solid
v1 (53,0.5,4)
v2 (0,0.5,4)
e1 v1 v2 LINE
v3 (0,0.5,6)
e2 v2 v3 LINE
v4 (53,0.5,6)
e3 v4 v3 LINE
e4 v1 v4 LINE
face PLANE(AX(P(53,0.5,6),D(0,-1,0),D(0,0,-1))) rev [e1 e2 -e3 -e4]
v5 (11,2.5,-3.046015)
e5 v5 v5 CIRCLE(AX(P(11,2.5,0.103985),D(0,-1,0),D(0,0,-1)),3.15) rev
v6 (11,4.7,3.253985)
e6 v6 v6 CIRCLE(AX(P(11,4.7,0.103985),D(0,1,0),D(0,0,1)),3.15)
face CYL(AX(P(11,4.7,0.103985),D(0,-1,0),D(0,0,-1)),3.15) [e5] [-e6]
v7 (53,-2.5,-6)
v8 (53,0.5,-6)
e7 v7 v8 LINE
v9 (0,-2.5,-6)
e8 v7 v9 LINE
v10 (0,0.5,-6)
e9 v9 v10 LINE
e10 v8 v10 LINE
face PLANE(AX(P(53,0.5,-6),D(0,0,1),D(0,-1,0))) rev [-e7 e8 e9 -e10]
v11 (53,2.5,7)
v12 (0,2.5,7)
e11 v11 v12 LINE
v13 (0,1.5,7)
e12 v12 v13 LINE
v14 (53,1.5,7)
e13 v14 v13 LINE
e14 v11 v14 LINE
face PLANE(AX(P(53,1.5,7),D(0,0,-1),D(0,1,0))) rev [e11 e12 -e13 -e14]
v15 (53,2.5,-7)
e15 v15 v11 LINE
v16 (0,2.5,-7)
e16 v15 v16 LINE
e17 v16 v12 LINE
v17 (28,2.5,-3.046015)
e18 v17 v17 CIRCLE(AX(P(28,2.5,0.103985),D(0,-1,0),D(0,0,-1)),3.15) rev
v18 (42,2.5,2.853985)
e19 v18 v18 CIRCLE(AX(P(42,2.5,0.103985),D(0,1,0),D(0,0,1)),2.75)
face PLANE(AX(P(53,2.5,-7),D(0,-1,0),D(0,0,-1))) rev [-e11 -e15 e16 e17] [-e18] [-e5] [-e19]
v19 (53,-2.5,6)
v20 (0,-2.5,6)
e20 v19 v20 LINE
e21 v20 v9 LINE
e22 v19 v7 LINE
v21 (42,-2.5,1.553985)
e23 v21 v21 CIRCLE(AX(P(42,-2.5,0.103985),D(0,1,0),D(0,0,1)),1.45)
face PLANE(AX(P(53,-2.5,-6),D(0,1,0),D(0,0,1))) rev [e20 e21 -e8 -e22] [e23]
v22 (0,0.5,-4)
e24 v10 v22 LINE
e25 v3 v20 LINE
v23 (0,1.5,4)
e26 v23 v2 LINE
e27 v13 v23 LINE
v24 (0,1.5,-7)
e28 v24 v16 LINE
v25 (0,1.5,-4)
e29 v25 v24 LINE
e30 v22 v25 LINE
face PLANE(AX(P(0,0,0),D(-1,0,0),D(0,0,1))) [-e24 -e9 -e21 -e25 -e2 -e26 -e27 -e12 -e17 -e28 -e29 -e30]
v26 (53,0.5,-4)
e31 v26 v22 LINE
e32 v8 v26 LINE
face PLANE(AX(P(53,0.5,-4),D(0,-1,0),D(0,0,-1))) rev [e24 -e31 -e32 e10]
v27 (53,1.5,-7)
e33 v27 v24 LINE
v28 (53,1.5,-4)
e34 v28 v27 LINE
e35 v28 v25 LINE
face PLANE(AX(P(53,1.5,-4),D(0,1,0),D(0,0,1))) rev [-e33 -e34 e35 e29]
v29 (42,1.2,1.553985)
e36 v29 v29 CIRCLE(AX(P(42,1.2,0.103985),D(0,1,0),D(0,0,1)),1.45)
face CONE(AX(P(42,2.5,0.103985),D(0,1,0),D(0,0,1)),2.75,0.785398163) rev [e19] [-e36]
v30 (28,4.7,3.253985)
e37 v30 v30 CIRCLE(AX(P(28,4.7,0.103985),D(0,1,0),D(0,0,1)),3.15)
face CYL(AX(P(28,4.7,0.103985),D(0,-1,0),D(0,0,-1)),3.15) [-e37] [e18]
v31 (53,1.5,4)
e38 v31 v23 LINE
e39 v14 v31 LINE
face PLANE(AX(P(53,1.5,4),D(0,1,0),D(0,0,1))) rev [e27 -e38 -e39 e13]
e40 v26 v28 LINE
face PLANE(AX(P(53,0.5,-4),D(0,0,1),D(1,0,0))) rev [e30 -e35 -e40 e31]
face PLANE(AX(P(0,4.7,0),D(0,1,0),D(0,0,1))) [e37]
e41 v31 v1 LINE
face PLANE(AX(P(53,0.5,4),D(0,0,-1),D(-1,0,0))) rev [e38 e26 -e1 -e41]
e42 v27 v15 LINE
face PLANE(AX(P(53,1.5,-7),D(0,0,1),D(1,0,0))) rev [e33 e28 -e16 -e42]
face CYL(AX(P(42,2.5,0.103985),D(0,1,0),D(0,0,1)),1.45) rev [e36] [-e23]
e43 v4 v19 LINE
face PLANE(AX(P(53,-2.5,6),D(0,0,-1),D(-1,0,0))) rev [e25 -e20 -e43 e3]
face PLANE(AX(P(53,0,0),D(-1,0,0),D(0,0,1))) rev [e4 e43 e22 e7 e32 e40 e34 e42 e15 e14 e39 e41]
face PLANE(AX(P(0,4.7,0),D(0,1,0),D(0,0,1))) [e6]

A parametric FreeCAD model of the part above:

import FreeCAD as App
import Part
import Sketcher

V = App.Vector

doc = App.newDocument("Part")
params = doc.addObject("Spreadsheet::Sheet", "Params")
for row, (alias, value) in enumerate([
    ("sketch1_width", "1 mm"),
    ("sketch1_width2", "3 mm"),
    ("sketch1_height", "2 mm"),
    ("sketch1_height2", "14 mm"),
    ("pad1_length", "53 mm"),
    ("sketch2_diameter", "2.9 mm"),
    ("hole_diameter", "2.9 mm"),
    ("hole_depth", "14 mm"),
    ("hole_csink_diameter", "5.5 mm"),
    ("sketch3_diameter", "6.3 mm"),
    ("pad2_length", "2.2 mm"),
], start=1):
    params.set(f"A{row}", alias)
    params.set(f"B{row}", "=" + value)
    params.setAlias(f"B{row}", alias)

body = doc.addObject("PartDesign::Body", "Body")

# Sketch on YZ plane
sketch1 = body.newObject("Sketcher::SketchObject", "Sketch")
sketch1.AttachmentSupport = (doc.getObject("YZ_Plane"), [""])
sketch1.MapMode = "FlatFace"
sketch1.addGeometry([
    Part.LineSegment(V(0.5, -6, 0), V(0.5, -4, 0)),  # 0
    Part.LineSegment(V(0.5, -4, 0), V(1.5, -4, 0)),  # 1
    Part.LineSegment(V(1.5, -4, 0), V(1.5, -7, 0)),  # 2
    Part.LineSegment(V(1.5, -7, 0), V(2.5, -7, 0)),  # 3
    Part.LineSegment(V(2.5, -7, 0), V(2.5, 7, 0)),  # 4
    Part.LineSegment(V(2.5, 7, 0), V(1.5, 7, 0)),  # 5
    Part.LineSegment(V(1.5, 7, 0), V(1.5, 4, 0)),  # 6
    Part.LineSegment(V(1.5, 4, 0), V(0.5, 4, 0)),  # 7
    Part.LineSegment(V(0.5, 4, 0), V(0.5, 6, 0)),  # 8
    Part.LineSegment(V(0.5, 6, 0), V(-2.5, 6, 0)),  # 9
    Part.LineSegment(V(-2.5, 6, 0), V(-2.5, -6, 0)),  # 10
    Part.LineSegment(V(-2.5, -6, 0), V(0.5, -6, 0)),  # 11
], False)
sketch1.addConstraint([
    Sketcher.Constraint("Coincident", 0, 2, 1, 1),
    Sketcher.Constraint("Coincident", 1, 2, 2, 1),
    Sketcher.Constraint("Coincident", 2, 2, 3, 1),
    Sketcher.Constraint("Coincident", 3, 2, 4, 1),
    Sketcher.Constraint("Coincident", 4, 2, 5, 1),
    Sketcher.Constraint("Coincident", 5, 2, 6, 1),
    Sketcher.Constraint("Coincident", 6, 2, 7, 1),
    Sketcher.Constraint("Coincident", 7, 2, 8, 1),
    Sketcher.Constraint("Coincident", 8, 2, 9, 1),
    Sketcher.Constraint("Coincident", 9, 2, 10, 1),
    Sketcher.Constraint("Coincident", 10, 2, 11, 1),
    Sketcher.Constraint("Coincident", 11, 2, 0, 1),
    Sketcher.Constraint("Vertical", 0),
    Sketcher.Constraint("Horizontal", 1),
    Sketcher.Constraint("Vertical", 2),
    Sketcher.Constraint("Horizontal", 3),
    Sketcher.Constraint("Vertical", 4),
    Sketcher.Constraint("Horizontal", 5),
    Sketcher.Constraint("Vertical", 6),
    Sketcher.Constraint("Horizontal", 7),
    Sketcher.Constraint("Vertical", 8),
    Sketcher.Constraint("Horizontal", 9),
    Sketcher.Constraint("Vertical", 10),
    Sketcher.Constraint("Horizontal", 11),
    Sketcher.Constraint("Symmetric", 2, 2, 5, 2, -1),
    Sketcher.Constraint("Symmetric", 0, 2, 7, 2, -1),
    Sketcher.Constraint("Equal", 1, 3),
    Sketcher.Constraint("Equal", 11, 2),
    Sketcher.Constraint("Equal", 0, 8),
    Sketcher.Constraint("DistanceX", 1, 1, 1, 2, 1.0),
    Sketcher.Constraint("DistanceX", 9, 2, 9, 1, 3.0),
    Sketcher.Constraint("DistanceY", 0, 1, 0, 2, 2.0),
    Sketcher.Constraint("DistanceY", 4, 1, 4, 2, 14.0),
    Sketcher.Constraint("DistanceX", -1, 1, 0, 2, 0.5),
])
sketch1.setExpression("Constraints[29]", "Params.sketch1_width")
sketch1.setExpression("Constraints[30]", "Params.sketch1_width2")
sketch1.setExpression("Constraints[31]", "Params.sketch1_height")
sketch1.setExpression("Constraints[32]", "Params.sketch1_height2")
pad1 = body.newObject("PartDesign::Pad", "Pad")
pad1.Profile = sketch1
pad1.setExpression("Length", "Params.pad1_length")

# Sketch on XZ plane
sketch2 = body.newObject("Sketcher::SketchObject", "Sketch001")
sketch2.AttachmentSupport = (doc.getObject("XZ_Plane"), [""])
sketch2.MapMode = "FlatFace"
sketch2.AttachmentOffset = App.Placement(V(0, 0, -2.5), App.Rotation())
sketch2.addGeometry(Part.Circle(V(42, 0.103985, 0), V(0, 0, 1), 1.45), False)
sketch2.addConstraint([
    Sketcher.Constraint("Diameter", 0, 2.9),
    Sketcher.Constraint("DistanceX", -1, 1, 0, 3, 42.0),
    Sketcher.Constraint("DistanceY", -1, 1, 0, 3, 0.103985),
])
sketch2.setExpression("Constraints[0]", "Params.sketch2_diameter")
doc.recompute()
hole = body.newObject("PartDesign::Hole", "Hole")
hole.Profile = sketch2
hole.ThreadType = "None"
hole.setExpression("Diameter", "Params.hole_diameter")
hole.DepthType = "Dimension"
hole.setExpression("Depth", "Params.hole_depth")
hole.DrillPoint = "Angled"
hole.DrillPointAngle = 118
hole.HoleCutType = "Countersink"
hole.setExpression("HoleCutDiameter", "Params.hole_csink_diameter")
hole.HoleCutCountersinkAngle = 90
hole.Reversed = True

# Sketch on XZ plane
sketch3 = body.newObject("Sketcher::SketchObject", "Sketch002")
sketch3.AttachmentSupport = (doc.getObject("XZ_Plane"), [""])
sketch3.MapMode = "FlatFace"
sketch3.AttachmentOffset = App.Placement(V(0, 0, -2.5), App.Rotation())
sketch3.addGeometry([
    Part.Circle(V(11, 0.103985, 0), V(0, 0, 1), 3.15),
    Part.Circle(V(28, 0.103985, 0), V(0, 0, 1), 3.15),
], False)
sketch3.addConstraint([
    Sketcher.Constraint("Equal", 0, 1),
    Sketcher.Constraint("Horizontal", 0, 3, 1, 3),
    Sketcher.Constraint("Diameter", 0, 6.3),
    Sketcher.Constraint("DistanceX", -1, 1, 0, 3, 11.0),
    Sketcher.Constraint("DistanceX", -1, 1, 1, 3, 28.0),
    Sketcher.Constraint("DistanceY", -1, 1, 0, 3, 0.103985),
])
sketch3.setExpression("Constraints[2]", "Params.sketch3_diameter")
pad2 = body.newObject("PartDesign::Pad", "Pad001")
pad2.Profile = sketch3
pad2.setExpression("Length", "Params.pad2_length")
pad2.Reversed = True

doc.recompute()
